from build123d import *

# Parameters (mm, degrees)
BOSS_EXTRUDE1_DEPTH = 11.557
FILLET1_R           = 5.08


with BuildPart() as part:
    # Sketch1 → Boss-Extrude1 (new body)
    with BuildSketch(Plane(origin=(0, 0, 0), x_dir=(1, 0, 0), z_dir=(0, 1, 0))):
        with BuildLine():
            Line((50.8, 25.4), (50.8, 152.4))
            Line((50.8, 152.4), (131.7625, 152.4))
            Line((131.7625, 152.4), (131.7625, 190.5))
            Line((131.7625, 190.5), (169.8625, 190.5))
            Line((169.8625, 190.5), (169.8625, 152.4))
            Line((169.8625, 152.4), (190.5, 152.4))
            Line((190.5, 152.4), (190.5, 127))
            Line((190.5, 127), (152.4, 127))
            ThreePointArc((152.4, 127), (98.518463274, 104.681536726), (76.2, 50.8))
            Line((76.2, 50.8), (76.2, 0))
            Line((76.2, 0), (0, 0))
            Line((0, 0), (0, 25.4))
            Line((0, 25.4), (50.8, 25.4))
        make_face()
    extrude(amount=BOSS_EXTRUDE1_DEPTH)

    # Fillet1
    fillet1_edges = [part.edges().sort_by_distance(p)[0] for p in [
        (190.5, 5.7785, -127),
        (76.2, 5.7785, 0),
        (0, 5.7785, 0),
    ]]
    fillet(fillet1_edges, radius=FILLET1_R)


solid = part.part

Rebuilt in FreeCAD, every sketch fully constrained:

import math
import FreeCAD as App
import Part
import Sketcher
Q = App.Units.Quantity


def edges_at(feature, points):
    """Names of the edges that pass closest to the given points."""
    edges = feature.Shape.Edges
    near = lambda p: min(range(len(edges)), key=lambda i: edges[i].distToShape(Part.Vertex(*p))[0])
    return sorted({f"Edge{near(p) + 1}" for p in points})

doc = App.newDocument("Part")
body = doc.addObject("PartDesign::Body", "Body")

# Sketch on XZ plane
sketch1 = body.newObject("Sketcher::SketchObject", "Sketch")
sketch1.AttachmentSupport = (doc.getObject("XZ_Plane"), [""])
sketch1.MapMode = "FlatFace"
sketch1.addGeometry([
    Part.LineSegment(App.Vector(50.8, -152.4, 0), App.Vector(50.8, -25.4, 0)),  # 0
    Part.LineSegment(App.Vector(50.8, -25.4, 0), App.Vector(0, -25.4, 0)),  # 1
    Part.LineSegment(App.Vector(0, -25.4, 0), App.Vector(0, 0, 0)),  # 2
    Part.LineSegment(App.Vector(0, 0, 0), App.Vector(76.2, 0, 0)),  # 3
    Part.LineSegment(App.Vector(76.2, 0, 0), App.Vector(76.2, -50.8, 0)),  # 4
    Part.ArcOfCircle(Part.Circle(App.Vector(152.4, -50.8, 0), App.Vector(0, 0, 1), 76.2), math.radians(-180), math.radians(-90)),  # 5
    Part.LineSegment(App.Vector(152.4, -127, 0), App.Vector(190.5, -127, 0)),  # 6
    Part.LineSegment(App.Vector(190.5, -127, 0), App.Vector(190.5, -152.4, 0)),  # 7
    Part.LineSegment(App.Vector(190.5, -152.4, 0), App.Vector(169.8625, -152.4, 0)),  # 8
    Part.LineSegment(App.Vector(169.8625, -152.4, 0), App.Vector(169.8625, -190.5, 0)),  # 9
    Part.LineSegment(App.Vector(169.8625, -190.5, 0), App.Vector(131.7625, -190.5, 0)),  # 10
    Part.LineSegment(App.Vector(131.7625, -190.5, 0), App.Vector(131.7625, -152.4, 0)),  # 11
    Part.LineSegment(App.Vector(131.7625, -152.4, 0), App.Vector(50.8, -152.4, 0)),  # 12
], False)
sketch1.addConstraint([
    Sketcher.Constraint("Coincident", 0, 2, 1, 1),
    Sketcher.Constraint("Coincident", 1, 2, 2, 1),
    Sketcher.Constraint("Coincident", 2, 2, 3, 1),
    Sketcher.Constraint("Coincident", 3, 2, 4, 1),
    Sketcher.Constraint("Tangent", 4, 2, 5, 1),
    Sketcher.Constraint("Tangent", 5, 2, 6, 1),
    Sketcher.Constraint("Coincident", 6, 2, 7, 1),
    Sketcher.Constraint("Coincident", 7, 2, 8, 1),
    Sketcher.Constraint("Coincident", 8, 2, 9, 1),
    Sketcher.Constraint("Coincident", 9, 2, 10, 1),
    Sketcher.Constraint("Coincident", 10, 2, 11, 1),
    Sketcher.Constraint("Coincident", 11, 2, 12, 1),
    Sketcher.Constraint("Coincident", 12, 2, 0, 1),
    Sketcher.Constraint("Vertical", 0),
    Sketcher.Constraint("Horizontal", 1),
    Sketcher.Constraint("Vertical", 2),
    Sketcher.Constraint("Horizontal", 3),
    Sketcher.Constraint("Vertical", 4),
    Sketcher.Constraint("Horizontal", 6),
    Sketcher.Constraint("Vertical", 7),
    Sketcher.Constraint("Horizontal", 8),
    Sketcher.Constraint("Vertical", 9),
    Sketcher.Constraint("Horizontal", 10),
    Sketcher.Constraint("Vertical", 11),
    Sketcher.Constraint("Horizontal", 12),
    Sketcher.Constraint("Coincident", 2, 2, -1, 1),
    Sketcher.Constraint("Horizontal", 8, 2, 11, 2),
    Sketcher.Constraint("Equal", 6, 10),
    Sketcher.Constraint("Equal", 1, 4),
    Sketcher.Constraint("Equal", 2, 7),
    Sketcher.Constraint("Equal", 10, 9),
    Sketcher.Constraint("Radius", 5, Q("3 in")),
    Sketcher.Constraint("DistanceX", 1, 2, 1, 1, Q("2 in")),
    Sketcher.Constraint("DistanceX", 3, 1, 3, 2, Q("3 in")),
    Sketcher.Constraint("DistanceY", 2, 1, 2, 2, Q("1 in")),
    Sketcher.Constraint("DistanceX", 6, 1, 6, 2, Q("1.5 in")),
    Sketcher.Constraint("DistanceX", 8, 2, 8, 1, Q("0.8125 in")),
])
pad1 = body.newObject("PartDesign::Pad", "Pad")
pad1.Profile = sketch1
pad1.Length = Q("0.455 in")
pad1.Reversed = True
doc.recompute()

fillet = body.newObject("PartDesign::Fillet", "Fillet")
fillet.Base = (pad1, edges_at(pad1, [(190.5, 5.779, -127), (76.2, 5.779, 0), (0, 5.779, 0)]))
fillet.Radius = Q("0.2 in")

doc.recompute()
